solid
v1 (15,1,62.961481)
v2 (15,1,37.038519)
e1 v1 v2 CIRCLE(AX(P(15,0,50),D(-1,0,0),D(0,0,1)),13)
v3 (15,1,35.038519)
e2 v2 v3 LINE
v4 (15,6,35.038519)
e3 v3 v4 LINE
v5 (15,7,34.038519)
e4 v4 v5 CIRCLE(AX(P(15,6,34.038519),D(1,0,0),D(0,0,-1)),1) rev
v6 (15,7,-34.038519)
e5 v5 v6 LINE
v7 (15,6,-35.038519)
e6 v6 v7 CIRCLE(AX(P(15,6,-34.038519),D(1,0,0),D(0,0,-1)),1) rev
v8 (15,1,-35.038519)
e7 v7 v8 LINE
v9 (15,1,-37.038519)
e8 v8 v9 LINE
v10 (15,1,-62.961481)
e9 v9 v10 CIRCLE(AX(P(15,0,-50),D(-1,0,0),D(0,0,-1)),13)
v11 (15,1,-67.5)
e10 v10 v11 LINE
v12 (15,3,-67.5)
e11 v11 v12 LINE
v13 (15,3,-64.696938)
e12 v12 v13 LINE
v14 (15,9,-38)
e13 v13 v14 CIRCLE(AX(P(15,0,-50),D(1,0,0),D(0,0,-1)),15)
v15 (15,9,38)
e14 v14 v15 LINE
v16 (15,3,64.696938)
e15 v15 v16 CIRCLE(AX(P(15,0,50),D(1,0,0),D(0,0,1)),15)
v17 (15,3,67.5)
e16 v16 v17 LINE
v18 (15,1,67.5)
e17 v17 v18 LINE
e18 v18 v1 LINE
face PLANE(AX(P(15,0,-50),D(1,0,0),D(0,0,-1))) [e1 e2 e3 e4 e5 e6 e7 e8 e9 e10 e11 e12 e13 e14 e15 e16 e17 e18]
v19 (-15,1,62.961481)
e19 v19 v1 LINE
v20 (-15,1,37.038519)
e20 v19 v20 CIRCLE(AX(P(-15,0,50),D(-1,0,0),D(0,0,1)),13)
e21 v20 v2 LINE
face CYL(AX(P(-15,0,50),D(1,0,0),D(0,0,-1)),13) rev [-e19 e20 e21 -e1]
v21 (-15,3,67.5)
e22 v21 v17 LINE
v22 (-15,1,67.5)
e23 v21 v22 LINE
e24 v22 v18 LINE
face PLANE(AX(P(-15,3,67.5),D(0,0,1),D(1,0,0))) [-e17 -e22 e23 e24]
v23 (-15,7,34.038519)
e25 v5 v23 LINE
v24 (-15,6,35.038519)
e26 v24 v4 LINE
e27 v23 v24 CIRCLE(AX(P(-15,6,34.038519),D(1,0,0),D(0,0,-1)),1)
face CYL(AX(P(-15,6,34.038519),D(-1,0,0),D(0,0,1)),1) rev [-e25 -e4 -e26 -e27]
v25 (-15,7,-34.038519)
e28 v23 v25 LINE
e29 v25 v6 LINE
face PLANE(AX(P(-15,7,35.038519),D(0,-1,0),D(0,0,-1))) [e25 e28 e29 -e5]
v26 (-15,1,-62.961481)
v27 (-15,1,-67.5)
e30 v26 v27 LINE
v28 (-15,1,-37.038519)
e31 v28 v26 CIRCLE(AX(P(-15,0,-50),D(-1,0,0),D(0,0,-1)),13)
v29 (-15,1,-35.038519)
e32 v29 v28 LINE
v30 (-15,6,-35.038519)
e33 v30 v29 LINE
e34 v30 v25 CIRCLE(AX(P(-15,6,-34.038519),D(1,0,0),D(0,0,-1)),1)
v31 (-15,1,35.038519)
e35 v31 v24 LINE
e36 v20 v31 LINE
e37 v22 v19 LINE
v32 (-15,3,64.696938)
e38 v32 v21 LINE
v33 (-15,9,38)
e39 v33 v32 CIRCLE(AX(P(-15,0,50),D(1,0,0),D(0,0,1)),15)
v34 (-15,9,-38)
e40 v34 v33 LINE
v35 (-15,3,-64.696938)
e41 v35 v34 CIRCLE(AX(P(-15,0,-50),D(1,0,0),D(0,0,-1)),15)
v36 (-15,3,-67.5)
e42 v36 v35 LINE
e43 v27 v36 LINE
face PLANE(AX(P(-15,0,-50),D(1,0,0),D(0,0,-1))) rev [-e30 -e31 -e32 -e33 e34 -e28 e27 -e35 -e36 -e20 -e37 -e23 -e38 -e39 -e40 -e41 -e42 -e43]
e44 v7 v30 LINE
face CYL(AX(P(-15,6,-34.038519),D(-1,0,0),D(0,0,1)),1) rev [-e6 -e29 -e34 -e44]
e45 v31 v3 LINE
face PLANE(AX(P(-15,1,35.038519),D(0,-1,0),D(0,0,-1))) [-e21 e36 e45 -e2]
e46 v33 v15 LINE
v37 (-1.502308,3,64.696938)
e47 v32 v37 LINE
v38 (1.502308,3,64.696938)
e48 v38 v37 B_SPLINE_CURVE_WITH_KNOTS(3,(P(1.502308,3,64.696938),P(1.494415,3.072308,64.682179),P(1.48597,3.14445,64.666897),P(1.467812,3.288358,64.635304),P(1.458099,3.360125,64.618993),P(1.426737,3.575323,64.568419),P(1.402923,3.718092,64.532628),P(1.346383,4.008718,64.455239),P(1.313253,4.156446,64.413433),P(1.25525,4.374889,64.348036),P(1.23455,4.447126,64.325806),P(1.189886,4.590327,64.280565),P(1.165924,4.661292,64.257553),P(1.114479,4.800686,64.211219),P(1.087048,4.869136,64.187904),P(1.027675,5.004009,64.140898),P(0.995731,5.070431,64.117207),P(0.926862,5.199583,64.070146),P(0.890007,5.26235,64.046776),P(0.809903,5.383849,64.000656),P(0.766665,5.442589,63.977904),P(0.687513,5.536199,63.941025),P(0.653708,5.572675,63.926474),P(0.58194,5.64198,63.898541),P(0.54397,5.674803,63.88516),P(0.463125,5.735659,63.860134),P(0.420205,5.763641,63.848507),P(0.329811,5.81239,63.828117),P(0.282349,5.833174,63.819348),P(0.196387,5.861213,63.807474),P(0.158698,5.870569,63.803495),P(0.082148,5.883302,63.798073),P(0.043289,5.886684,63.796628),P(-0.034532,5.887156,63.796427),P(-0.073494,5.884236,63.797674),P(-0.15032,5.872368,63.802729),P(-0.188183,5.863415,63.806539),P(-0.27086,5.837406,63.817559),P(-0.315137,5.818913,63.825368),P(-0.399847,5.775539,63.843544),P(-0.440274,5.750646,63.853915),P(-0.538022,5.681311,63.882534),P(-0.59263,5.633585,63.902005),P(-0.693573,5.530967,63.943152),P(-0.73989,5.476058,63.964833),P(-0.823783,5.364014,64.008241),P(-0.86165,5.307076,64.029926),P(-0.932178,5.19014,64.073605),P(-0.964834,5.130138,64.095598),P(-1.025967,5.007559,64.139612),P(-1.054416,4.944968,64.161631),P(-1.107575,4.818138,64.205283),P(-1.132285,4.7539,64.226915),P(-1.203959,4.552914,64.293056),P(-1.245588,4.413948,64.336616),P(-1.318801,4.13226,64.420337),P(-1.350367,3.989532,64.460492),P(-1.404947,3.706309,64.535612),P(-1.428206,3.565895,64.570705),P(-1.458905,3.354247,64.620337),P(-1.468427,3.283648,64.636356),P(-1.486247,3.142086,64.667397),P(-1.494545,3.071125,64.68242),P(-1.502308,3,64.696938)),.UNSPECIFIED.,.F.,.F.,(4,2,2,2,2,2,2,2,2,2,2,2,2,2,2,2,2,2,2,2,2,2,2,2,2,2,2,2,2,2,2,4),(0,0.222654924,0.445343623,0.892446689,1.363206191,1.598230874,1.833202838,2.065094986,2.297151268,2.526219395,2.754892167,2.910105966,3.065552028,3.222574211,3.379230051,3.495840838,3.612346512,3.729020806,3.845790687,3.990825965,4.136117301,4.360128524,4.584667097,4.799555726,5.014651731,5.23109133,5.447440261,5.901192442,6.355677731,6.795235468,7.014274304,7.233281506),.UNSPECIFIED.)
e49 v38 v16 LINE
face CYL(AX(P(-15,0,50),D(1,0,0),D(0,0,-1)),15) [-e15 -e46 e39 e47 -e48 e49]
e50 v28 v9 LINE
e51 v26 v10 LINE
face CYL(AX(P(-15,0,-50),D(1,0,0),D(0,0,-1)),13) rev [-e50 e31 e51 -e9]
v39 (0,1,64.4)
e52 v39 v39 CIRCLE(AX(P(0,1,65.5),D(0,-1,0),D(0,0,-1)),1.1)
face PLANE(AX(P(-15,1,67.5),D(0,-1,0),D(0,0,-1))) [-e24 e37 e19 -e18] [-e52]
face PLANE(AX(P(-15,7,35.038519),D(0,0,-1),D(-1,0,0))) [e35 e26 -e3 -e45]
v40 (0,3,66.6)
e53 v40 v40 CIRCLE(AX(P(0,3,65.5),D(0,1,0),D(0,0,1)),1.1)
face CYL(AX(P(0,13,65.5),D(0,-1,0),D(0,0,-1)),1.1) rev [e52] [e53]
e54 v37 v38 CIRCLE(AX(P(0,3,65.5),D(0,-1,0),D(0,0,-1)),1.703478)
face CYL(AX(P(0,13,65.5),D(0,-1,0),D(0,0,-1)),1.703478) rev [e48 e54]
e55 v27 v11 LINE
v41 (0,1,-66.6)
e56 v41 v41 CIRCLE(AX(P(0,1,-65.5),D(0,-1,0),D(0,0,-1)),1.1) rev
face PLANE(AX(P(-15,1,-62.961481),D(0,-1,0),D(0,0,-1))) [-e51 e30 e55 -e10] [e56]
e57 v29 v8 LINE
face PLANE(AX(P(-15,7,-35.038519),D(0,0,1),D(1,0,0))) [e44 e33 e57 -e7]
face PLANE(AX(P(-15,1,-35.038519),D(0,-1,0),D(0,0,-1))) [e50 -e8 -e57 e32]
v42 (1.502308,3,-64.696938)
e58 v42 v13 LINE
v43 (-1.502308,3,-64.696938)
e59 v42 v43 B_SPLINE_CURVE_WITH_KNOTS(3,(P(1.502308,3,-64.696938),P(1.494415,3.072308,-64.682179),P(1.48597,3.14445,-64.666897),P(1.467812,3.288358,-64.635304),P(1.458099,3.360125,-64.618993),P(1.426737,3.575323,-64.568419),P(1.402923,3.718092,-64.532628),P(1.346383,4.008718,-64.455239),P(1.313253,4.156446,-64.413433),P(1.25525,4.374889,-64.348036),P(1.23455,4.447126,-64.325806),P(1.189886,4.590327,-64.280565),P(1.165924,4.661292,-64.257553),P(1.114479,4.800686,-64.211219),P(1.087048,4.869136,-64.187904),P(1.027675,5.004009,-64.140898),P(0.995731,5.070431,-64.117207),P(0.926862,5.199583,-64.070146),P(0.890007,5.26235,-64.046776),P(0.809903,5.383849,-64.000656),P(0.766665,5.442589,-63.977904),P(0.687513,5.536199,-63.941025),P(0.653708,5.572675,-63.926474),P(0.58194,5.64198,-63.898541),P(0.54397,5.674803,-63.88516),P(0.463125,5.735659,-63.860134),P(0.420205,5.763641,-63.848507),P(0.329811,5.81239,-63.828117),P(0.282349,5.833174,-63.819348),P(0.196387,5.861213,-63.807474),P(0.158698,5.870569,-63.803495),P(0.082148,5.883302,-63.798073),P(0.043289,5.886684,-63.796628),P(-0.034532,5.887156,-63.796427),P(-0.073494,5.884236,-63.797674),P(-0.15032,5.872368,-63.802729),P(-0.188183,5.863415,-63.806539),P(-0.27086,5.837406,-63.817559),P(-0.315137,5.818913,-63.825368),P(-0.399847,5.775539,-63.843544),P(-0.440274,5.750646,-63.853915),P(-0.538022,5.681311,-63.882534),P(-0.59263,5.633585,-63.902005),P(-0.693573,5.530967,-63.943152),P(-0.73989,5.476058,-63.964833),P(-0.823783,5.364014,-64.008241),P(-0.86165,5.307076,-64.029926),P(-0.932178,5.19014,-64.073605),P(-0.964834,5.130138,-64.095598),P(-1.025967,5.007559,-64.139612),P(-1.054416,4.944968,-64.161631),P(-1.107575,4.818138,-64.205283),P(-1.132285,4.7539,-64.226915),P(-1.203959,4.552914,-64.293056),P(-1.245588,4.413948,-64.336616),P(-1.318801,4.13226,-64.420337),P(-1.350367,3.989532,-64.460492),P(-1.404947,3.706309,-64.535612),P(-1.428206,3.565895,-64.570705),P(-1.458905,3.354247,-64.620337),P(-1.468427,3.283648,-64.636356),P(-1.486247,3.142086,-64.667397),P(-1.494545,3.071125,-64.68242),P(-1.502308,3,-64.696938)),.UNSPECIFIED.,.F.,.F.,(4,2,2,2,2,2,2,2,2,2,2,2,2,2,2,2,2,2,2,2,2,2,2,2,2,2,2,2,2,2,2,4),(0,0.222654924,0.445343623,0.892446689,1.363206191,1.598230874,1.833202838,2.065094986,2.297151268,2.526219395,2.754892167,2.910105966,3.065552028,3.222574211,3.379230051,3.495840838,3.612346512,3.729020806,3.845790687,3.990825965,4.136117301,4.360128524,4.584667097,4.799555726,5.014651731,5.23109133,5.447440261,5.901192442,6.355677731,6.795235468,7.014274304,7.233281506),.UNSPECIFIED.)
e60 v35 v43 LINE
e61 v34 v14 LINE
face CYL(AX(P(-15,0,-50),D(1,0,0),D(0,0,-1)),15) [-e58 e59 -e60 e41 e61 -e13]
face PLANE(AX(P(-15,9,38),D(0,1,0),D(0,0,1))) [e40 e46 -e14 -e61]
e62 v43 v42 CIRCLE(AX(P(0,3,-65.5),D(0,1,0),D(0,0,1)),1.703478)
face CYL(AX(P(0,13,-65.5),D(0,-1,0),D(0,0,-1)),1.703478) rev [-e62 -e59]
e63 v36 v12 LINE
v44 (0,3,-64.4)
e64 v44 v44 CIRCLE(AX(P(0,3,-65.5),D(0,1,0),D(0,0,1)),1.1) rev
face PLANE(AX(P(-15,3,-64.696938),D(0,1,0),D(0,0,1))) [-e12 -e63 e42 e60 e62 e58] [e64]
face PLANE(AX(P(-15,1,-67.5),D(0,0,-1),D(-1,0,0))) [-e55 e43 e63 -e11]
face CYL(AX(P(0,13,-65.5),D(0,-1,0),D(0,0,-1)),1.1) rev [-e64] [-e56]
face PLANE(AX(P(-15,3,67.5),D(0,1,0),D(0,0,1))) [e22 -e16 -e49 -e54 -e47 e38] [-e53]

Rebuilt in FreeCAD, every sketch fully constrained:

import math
import FreeCAD as App
import Part
import Sketcher

V = App.Vector
Q = App.Units.Quantity


def edges_at(feature, points):
    """Names of the edges that pass closest to the given points."""
    edges = feature.Shape.Edges
    near = lambda p: min(range(len(edges)), key=lambda i: edges[i].distToShape(Part.Vertex(*p))[0])
    return sorted({f"Edge{near(p) + 1}" for p in points})

doc = App.newDocument("Part")
params = doc.addObject("Spreadsheet::Sheet", "Params")
for row, (alias, value) in enumerate([
    ("sketch1_radius", "13 mm"),
    ("sketch1_radius2", "15 mm"),
    ("sketch1_width", "2 mm"),
    ("sketch1_width2", "6 mm"),
    ("sketch1_height", "76 mm"),
    ("pad1_length", "15 mm"),
    ("pad1_length2", "15 mm"),
    ("fillet_radius", "1 mm"),
    ("sketch2_diameter", "2.2 mm"),
    ("pocket1_length", "20 mm"),
    ("pocket2_length", "10 mm"),
], start=1):
    params.set(f"A{row}", alias)
    params.set(f"B{row}", "=" + value)
    params.setAlias(f"B{row}", alias)

body = doc.addObject("PartDesign::Body", "Body")

# Sketch on YZ plane
sketch1 = body.newObject("Sketcher::SketchObject", "Sketch")
sketch1.AttachmentSupport = (doc.getObject("YZ_Plane"), [""])
sketch1.MapMode = "FlatFace"
sketch1.addGeometry([
    Part.LineSegment(V(3, 67.5, 0), V(1, 67.5, 0)),  # 0
    Part.LineSegment(V(1, 67.5, 0), V(1, 63, 0)),  # 1
    Part.ArcOfCircle(Part.Circle(V(0, 50, 0), V(0, 0, 1), 13), math.radians(-86), math.radians(86)),  # 2
    Part.LineSegment(V(1, 37, 0), V(1, 35, 0)),  # 3
    Part.LineSegment(V(1, 35, 0), V(7, 35, 0)),  # 4
    Part.LineSegment(V(7, 35, 0), V(7, -35, 0)),  # 5
    Part.LineSegment(V(7, -35, 0), V(1, -35, 0)),  # 6
    Part.LineSegment(V(1, -35, 0), V(1, -37, 0)),  # 7
    Part.ArcOfCircle(Part.Circle(V(0, -50, 0), V(0, 0, 1), 13), math.radians(-86), math.radians(86)),  # 8
    Part.LineSegment(V(1, -63, 0), V(1, -67.5, 0)),  # 9
    Part.LineSegment(V(1, -67.5, 0), V(3, -67.5, 0)),  # 10
    Part.LineSegment(V(3, -67.5, 0), V(3, -64.7, 0)),  # 11
    Part.ArcOfCircle(Part.Circle(V(0, -50, 0), V(0, 0, 1), 15), math.radians(-78), math.radians(53)),  # 12
    Part.LineSegment(V(9, -38, 0), V(9, 38, 0)),  # 13
    Part.ArcOfCircle(Part.Circle(V(0, 50, 0), V(0, 0, 1), 15), math.radians(-53), math.radians(78)),  # 14
    Part.LineSegment(V(3, 64.7, 0), V(3, 67.5, 0)),  # 15
], False)
sketch1.addConstraint([
    Sketcher.Constraint("Coincident", 0, 2, 1, 1),
    Sketcher.Constraint("Coincident", 1, 2, 2, 2),
    Sketcher.Constraint("Coincident", 2, 1, 3, 1),
    Sketcher.Constraint("Coincident", 3, 2, 4, 1),
    Sketcher.Constraint("Coincident", 4, 2, 5, 1),
    Sketcher.Constraint("Coincident", 5, 2, 6, 1),
    Sketcher.Constraint("Coincident", 6, 2, 7, 1),
    Sketcher.Constraint("Coincident", 7, 2, 8, 2),
    Sketcher.Constraint("Coincident", 8, 1, 9, 1),
    Sketcher.Constraint("Coincident", 9, 2, 10, 1),
    Sketcher.Constraint("Coincident", 10, 2, 11, 1),
    Sketcher.Constraint("Coincident", 11, 2, 12, 1),
    Sketcher.Constraint("Coincident", 12, 2, 13, 1),
    Sketcher.Constraint("Coincident", 13, 2, 14, 1),
    Sketcher.Constraint("Coincident", 14, 2, 15, 1),
    Sketcher.Constraint("Coincident", 15, 2, 0, 1),
    Sketcher.Constraint("Horizontal", 0),
    Sketcher.Constraint("Vertical", 1),
    Sketcher.Constraint("Vertical", 3),
    Sketcher.Constraint("Horizontal", 4),
    Sketcher.Constraint("Vertical", 5),
    Sketcher.Constraint("Horizontal", 6),
    Sketcher.Constraint("Vertical", 7),
    Sketcher.Constraint("Vertical", 9),
    Sketcher.Constraint("Horizontal", 10),
    Sketcher.Constraint("Vertical", 11),
    Sketcher.Constraint("Vertical", 13),
    Sketcher.Constraint("Vertical", 15),
    Sketcher.Constraint("Coincident", 12, 3, 8, 3),
    Sketcher.Constraint("Coincident", 14, 3, 2, 3),
    Sketcher.Constraint("Equal", 2, 8),
    Sketcher.Constraint("Equal", 12, 14),
    Sketcher.Constraint("Symmetric", 2, 3, 8, 3, -1, 1),
    Sketcher.Constraint("Symmetric", 3, 2, 6, 2, -1),
    Sketcher.Constraint("Symmetric", 1, 2, 8, 1, -1),
    Sketcher.Constraint("Symmetric", 10, 2, 15, 2, -1),
    Sketcher.Constraint("Vertical", 1, 2, 2, 1),
    Sketcher.Constraint("Equal", 10, 3),
    Sketcher.Constraint("Radius", 2, Q("13 mm")),
    Sketcher.Constraint("Radius", 12, Q("15 mm")),
    Sketcher.Constraint("DistanceX", 0, 2, 0, 1, Q("2 mm")),
    Sketcher.Constraint("DistanceX", 4, 1, 4, 2, Q("6 mm")),
    Sketcher.Constraint("DistanceY", 13, 1, 13, 2, Q("76 mm")),
    Sketcher.Constraint("DistanceY", -1, 1, 2, 3, Q("50 mm")),
    Sketcher.Constraint("DistanceX", -1, 1, 0, 2, Q("1 mm")),
    Sketcher.Constraint("DistanceY", -1, 1, 0, 2, Q("67.5 mm")),
])
sketch1.setExpression("Constraints[38]", "Params.sketch1_radius")
sketch1.setExpression("Constraints[39]", "Params.sketch1_radius2")
sketch1.setExpression("Constraints[40]", "Params.sketch1_width")
sketch1.setExpression("Constraints[41]", "Params.sketch1_width2")
sketch1.setExpression("Constraints[42]", "Params.sketch1_height")
pad1 = body.newObject("PartDesign::Pad", "Pad")
pad1.Profile = sketch1
pad1.Type = "TwoLengths"
pad1.setExpression("Length", "Params.pad1_length")
pad1.setExpression("Length2", "Params.pad1_length2")
doc.recompute()

fillet = body.newObject("PartDesign::Fillet", "Fillet")
fillet.Base = (pad1, edges_at(pad1, [(0, 7, 35.039), (0, 7, -35.039)]))
fillet.setExpression("Radius", "Params.fillet_radius")

# Sketch on XZ plane
sketch2 = body.newObject("Sketcher::SketchObject", "Sketch001")
sketch2.AttachmentSupport = (doc.getObject("XZ_Plane"), [""])
sketch2.MapMode = "FlatFace"
sketch2.AttachmentOffset = App.Placement(V(0, 0, -3), App.Rotation())
sketch2.addGeometry(Part.Circle(V(0, -65.5, 0), V(0, 0, 1), 1.1), False)
sketch2.addConstraint([
    Sketcher.Constraint("PointOnObject", 0, 3, -2),
    Sketcher.Constraint("Diameter", 0, Q("2.2 mm")),
    Sketcher.Constraint("DistanceY", 0, 3, -1, 1, Q("65.5 mm")),
])
sketch2.setExpression("Constraints[1]", "Params.sketch2_diameter")
pocket1 = body.newObject("PartDesign::Pocket", "Pocket")
pocket1.Profile = sketch2
pocket1.setExpression("Length", "Params.pocket1_length")
pocket1.Midplane = True

# Sketch on XZ plane
sketch3 = body.newObject("Sketcher::SketchObject", "Sketch002")
sketch3.AttachmentSupport = (doc.getObject("XZ_Plane"), [""])
sketch3.MapMode = "FlatFace"
sketch3.AttachmentOffset = App.Placement(V(0, 0, -3), App.Rotation())
sketch3.addGeometry(Part.Circle(V(0, -65.5, 0), V(0, 0, 1), 1.7), False)
sketch3.addConstraint([
    Sketcher.Constraint("PointOnObject", 0, 3, -2),
    Sketcher.Constraint("DistanceY", 0, 3, -1, 1, Q("65.5 mm")),
    Sketcher.Constraint("Diameter", 0, Q("3.406956 mm")),
])
pocket2 = body.newObject("PartDesign::Pocket", "Pocket001")
pocket2.Profile = sketch3
pocket2.setExpression("Length", "Params.pocket2_length")
doc.recompute()

mirrored = body.newObject("PartDesign::Mirrored", "Mirrored")
mirrored.Originals = [pocket1, pocket2]
mirrored.MirrorPlane = (doc.getObject("XY_Plane"), [""])
body.Tip = mirrored

doc.recompute()
